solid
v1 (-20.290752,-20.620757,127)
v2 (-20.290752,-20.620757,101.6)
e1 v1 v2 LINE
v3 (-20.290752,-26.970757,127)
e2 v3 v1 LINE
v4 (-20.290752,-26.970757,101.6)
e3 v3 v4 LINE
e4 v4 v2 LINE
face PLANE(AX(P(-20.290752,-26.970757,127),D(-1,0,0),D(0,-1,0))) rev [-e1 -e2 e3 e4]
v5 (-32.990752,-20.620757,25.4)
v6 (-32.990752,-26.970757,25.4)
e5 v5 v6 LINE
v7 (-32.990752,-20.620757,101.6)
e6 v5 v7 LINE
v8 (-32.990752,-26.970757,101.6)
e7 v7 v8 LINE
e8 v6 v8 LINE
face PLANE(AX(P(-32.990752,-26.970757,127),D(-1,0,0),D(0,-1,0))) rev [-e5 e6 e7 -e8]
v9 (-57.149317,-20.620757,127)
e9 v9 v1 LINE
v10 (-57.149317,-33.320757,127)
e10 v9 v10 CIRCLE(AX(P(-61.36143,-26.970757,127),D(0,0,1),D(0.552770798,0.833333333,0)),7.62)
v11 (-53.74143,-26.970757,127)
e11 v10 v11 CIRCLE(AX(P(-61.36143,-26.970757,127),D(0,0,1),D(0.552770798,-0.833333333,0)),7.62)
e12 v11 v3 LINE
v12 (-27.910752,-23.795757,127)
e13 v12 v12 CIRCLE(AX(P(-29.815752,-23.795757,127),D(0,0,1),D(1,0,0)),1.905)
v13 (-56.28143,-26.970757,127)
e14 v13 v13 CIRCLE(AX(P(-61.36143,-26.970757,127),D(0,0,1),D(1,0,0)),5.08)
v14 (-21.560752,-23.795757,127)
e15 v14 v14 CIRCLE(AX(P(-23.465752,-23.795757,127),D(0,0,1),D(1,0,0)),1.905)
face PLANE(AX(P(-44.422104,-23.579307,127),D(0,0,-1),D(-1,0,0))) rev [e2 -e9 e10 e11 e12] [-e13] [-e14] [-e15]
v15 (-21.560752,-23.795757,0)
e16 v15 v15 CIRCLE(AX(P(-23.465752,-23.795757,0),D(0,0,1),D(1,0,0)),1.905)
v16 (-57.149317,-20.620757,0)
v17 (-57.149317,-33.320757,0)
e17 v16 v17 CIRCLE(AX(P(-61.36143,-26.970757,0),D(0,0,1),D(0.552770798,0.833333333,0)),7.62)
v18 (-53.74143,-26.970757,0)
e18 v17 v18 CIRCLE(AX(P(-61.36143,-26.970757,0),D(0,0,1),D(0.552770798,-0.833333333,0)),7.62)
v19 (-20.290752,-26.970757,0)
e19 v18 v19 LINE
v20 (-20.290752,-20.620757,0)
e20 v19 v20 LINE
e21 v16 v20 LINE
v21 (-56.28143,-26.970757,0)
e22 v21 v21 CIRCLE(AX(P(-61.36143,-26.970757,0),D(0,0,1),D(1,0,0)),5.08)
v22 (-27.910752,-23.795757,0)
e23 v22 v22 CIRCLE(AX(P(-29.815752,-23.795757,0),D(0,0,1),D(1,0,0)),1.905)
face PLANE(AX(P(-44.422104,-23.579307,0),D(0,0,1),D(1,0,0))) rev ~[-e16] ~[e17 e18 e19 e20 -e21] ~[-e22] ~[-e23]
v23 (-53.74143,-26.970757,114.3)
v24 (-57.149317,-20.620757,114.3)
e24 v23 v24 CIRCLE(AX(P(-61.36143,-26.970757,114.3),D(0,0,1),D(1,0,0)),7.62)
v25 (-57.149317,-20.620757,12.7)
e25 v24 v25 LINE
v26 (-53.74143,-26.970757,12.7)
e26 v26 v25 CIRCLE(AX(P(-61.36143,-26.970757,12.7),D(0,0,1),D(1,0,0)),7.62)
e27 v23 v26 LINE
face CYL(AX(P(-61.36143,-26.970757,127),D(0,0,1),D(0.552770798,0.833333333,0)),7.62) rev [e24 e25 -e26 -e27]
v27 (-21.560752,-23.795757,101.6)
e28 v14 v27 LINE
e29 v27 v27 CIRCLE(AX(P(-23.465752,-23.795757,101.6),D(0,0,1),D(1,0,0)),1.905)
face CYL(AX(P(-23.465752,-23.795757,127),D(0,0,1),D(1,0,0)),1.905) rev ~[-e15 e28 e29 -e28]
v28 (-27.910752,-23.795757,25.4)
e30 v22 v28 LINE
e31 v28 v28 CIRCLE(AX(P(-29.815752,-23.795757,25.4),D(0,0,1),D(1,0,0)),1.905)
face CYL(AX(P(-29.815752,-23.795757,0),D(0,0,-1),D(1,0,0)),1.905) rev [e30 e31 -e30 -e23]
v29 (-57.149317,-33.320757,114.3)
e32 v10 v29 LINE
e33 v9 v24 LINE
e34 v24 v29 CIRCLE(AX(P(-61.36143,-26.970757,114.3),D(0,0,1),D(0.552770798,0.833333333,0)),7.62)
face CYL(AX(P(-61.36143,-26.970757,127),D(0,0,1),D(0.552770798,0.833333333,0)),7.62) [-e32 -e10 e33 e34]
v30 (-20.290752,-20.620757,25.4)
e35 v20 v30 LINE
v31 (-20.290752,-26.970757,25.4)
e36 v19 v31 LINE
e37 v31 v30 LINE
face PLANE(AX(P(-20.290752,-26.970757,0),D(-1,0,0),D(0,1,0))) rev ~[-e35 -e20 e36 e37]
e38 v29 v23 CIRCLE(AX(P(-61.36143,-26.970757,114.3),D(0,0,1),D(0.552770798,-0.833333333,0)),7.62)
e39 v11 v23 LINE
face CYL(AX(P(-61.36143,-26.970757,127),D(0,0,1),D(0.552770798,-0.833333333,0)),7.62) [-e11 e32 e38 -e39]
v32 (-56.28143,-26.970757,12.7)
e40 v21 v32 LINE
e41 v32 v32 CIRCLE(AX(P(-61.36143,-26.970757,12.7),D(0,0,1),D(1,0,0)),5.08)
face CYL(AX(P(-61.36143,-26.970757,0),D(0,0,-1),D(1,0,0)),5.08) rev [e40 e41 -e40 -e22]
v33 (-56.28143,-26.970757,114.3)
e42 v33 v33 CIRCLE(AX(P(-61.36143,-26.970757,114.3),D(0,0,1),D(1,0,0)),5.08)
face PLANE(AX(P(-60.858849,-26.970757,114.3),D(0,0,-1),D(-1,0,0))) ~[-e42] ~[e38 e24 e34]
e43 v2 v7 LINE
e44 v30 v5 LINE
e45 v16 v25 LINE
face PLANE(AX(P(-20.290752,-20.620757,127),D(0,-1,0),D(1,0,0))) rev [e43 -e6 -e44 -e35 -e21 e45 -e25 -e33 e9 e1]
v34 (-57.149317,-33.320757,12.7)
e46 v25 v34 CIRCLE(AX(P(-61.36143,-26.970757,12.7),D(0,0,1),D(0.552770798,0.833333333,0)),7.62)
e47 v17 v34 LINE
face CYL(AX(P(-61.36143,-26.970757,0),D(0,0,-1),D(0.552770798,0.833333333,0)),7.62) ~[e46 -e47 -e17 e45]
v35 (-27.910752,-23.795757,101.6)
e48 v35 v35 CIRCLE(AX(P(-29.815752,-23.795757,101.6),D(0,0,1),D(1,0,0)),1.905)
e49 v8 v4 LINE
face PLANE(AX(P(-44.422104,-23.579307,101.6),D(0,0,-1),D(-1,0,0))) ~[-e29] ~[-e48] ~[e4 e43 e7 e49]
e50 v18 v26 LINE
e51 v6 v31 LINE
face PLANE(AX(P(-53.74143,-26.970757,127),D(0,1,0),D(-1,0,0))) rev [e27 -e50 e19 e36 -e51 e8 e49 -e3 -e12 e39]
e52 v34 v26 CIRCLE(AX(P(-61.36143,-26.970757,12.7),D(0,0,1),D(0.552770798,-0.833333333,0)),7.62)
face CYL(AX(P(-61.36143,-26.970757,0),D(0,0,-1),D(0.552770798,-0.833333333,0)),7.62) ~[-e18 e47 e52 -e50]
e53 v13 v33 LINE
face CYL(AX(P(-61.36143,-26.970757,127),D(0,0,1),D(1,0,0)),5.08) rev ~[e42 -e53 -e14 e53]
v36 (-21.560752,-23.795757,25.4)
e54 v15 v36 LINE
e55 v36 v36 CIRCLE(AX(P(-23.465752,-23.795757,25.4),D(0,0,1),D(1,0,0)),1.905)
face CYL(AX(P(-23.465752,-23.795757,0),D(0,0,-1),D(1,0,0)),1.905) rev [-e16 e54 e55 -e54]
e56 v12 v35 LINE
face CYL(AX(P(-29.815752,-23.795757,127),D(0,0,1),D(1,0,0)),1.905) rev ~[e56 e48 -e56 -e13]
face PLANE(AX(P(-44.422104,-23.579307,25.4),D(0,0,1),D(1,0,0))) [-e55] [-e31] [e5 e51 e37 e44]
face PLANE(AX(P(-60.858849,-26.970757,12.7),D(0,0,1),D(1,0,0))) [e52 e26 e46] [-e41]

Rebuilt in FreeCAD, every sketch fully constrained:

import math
import FreeCAD as App
import Part
import Sketcher
Q = App.Units.Quantity

doc = App.newDocument("Part")
body = doc.addObject("PartDesign::Body", "Body")

# Sketch on XY plane
sketch1 = body.newObject("Sketcher::SketchObject", "Sketch")
sketch1.AttachmentSupport = (doc.getObject("XY_Plane"), [""])
sketch1.MapMode = "FlatFace"
sketch1.addGeometry([
    Part.ArcOfCircle(Part.Circle(App.Vector(-61, -27, 0), App.Vector(0, 0, 1), 8), math.radians(56), math.radians(304)),
    Part.ArcOfCircle(Part.Circle(App.Vector(-61, -27, 0), App.Vector(0, 0, 1), 8), math.radians(-56), math.radians(0)),
    Part.ArcOfCircle(Part.Circle(App.Vector(-61, -27, 0), App.Vector(0, 0, 1), 8), math.radians(0), math.radians(56)),
    Part.Circle(App.Vector(-61, -27, 0), App.Vector(0, 0, 1), 5),
], False)
sketch1.addConstraint([
    Sketcher.Constraint("Tangent", 0, 2, 1, 1),
    Sketcher.Constraint("Tangent", 1, 2, 2, 1),
    Sketcher.Constraint("Tangent", 2, 2, 0, 1),
    Sketcher.Constraint("Coincident", 3, 3, 0, 3),
    Sketcher.Constraint("Horizontal", 3, 3, 1, 2),
    Sketcher.Constraint("Vertical", 0, 2, 2, 2),
    Sketcher.Constraint("Diameter", 3, Q("0.4 in")),
    Sketcher.Constraint("Radius", 0, Q("0.3 in")),
    Sketcher.Constraint("DistanceY", 0, 2, 2, 3, Q("0.25 in")),
    Sketcher.Constraint("DistanceX", 0, 3, -1, 1, Q("61.36143 mm")),
    Sketcher.Constraint("DistanceY", 0, 3, -1, 1, Q("26.970757 mm")),
])
pad1 = body.newObject("PartDesign::Pad", "Pad")
pad1.Profile = sketch1
pad1.Length = Q("0.5 in")

# Sketch on XY plane
sketch2 = body.newObject("Sketcher::SketchObject", "Sketch001")
sketch2.AttachmentSupport = (doc.getObject("XY_Plane"), [""])
sketch2.MapMode = "FlatFace"
sketch2.addGeometry([
    Part.LineSegment(App.Vector(-53.7, -27, 0), App.Vector(-20.3, -27, 0)),  # 0
    Part.LineSegment(App.Vector(-20.3, -27, 0), App.Vector(-20.3, -20.6, 0)),  # 1
    Part.LineSegment(App.Vector(-20.3, -20.6, 0), App.Vector(-57.1, -20.6, 0)),  # 2
    Part.ArcOfCircle(Part.Circle(App.Vector(-61.4, -27, 0), App.Vector(0, 0, 1), 7.6), math.radians(0), math.radians(56)),  # 3
    Part.Circle(App.Vector(-29.8, -23.8, 0), App.Vector(0, 0, 1), 1.9),  # 4
    Part.Circle(App.Vector(-23.5, -23.8, 0), App.Vector(0, 0, 1), 1.9),  # 5
], False)
sketch2.addConstraint([
    Sketcher.Constraint("Coincident", 0, 2, 1, 1),
    Sketcher.Constraint("Coincident", 1, 2, 2, 1),
    Sketcher.Constraint("Coincident", 2, 2, 3, 2),
    Sketcher.Constraint("Coincident", 3, 1, 0, 1),
    Sketcher.Constraint("Horizontal", 0),
    Sketcher.Constraint("Vertical", 1),
    Sketcher.Constraint("Horizontal", 2),
    Sketcher.Constraint("Equal", 4, 5),
    Sketcher.Constraint("Horizontal", 4, 3, 5, 3),
    Sketcher.Constraint("Horizontal", 3, 3, 0, 2),
    Sketcher.Constraint("Radius", 3, Q("0.3 in")),
    Sketcher.Constraint("Diameter", 4, Q("0.15 in")),
    Sketcher.Constraint("DistanceY", 1, 1, 1, 2, Q("0.25 in")),
    Sketcher.Constraint("DistanceX", 4, 3, 5, 3, Q("0.25 in")),
    Sketcher.Constraint("DistanceY", 3, 3, 4, 3, Q("0.125 in")),
    Sketcher.Constraint("DistanceX", 5, 3, 0, 2, Q("0.125 in")),
    Sketcher.Constraint("DistanceX", 0, 1, 0, 2, Q("33.450679 mm")),
    Sketcher.Constraint("DistanceX", 3, 3, -1, 1, Q("61.36143 mm")),
    Sketcher.Constraint("DistanceY", 3, 3, -1, 1, Q("26.970757 mm")),
])
pad2 = body.newObject("PartDesign::Pad", "Pad001")
pad2.Profile = sketch2
pad2.Length = Q("1 in")

# Sketch on XY plane
sketch3 = body.newObject("Sketcher::SketchObject", "Sketch002")
sketch3.AttachmentSupport = (doc.getObject("XY_Plane"), [""])
sketch3.MapMode = "FlatFace"
sketch3.addGeometry([
    Part.LineSegment(App.Vector(-54, -27, 0), App.Vector(-33, -27, 0)),
    Part.LineSegment(App.Vector(-33, -27, 0), App.Vector(-33, -21, 0)),
    Part.LineSegment(App.Vector(-33, -21, 0), App.Vector(-57, -21, 0)),
    Part.ArcOfCircle(Part.Circle(App.Vector(-61, -27, 0), App.Vector(0, 0, 1), 8), math.radians(0), math.radians(56)),
], False)
sketch3.addConstraint([
    Sketcher.Constraint("Coincident", 0, 2, 1, 1),
    Sketcher.Constraint("Coincident", 1, 2, 2, 1),
    Sketcher.Constraint("Coincident", 2, 2, 3, 2),
    Sketcher.Constraint("Coincident", 3, 1, 0, 1),
    Sketcher.Constraint("Horizontal", 0),
    Sketcher.Constraint("Vertical", 1),
    Sketcher.Constraint("Horizontal", 2),
    Sketcher.Constraint("Horizontal", 3, 3, 0, 2),
    Sketcher.Constraint("Radius", 3, Q("0.3 in")),
    Sketcher.Constraint("DistanceY", 1, 1, 1, 2, Q("0.25 in")),
    Sketcher.Constraint("DistanceX", 0, 1, 0, 2, Q("20.750679 mm")),
    Sketcher.Constraint("DistanceX", 3, 3, -1, 1, Q("61.36143 mm")),
    Sketcher.Constraint("DistanceY", 3, 3, -1, 1, Q("26.970757 mm")),
])
pad3 = body.newObject("PartDesign::Pad", "Pad002")
pad3.Profile = sketch3
pad3.Length = Q("2.5 in")
body2 = doc.addObject("PartDesign::Body", "Body001")
doc.recompute()

body2.BaseFeature = body
doc.recompute()

mirroring = doc.addObject("Part::Mirroring", "Mirroring")
mirroring.Source = body
mirroring.Base = App.Vector(-43.892507, -23.718378, 63.5)
mirroring.Normal = App.Vector(0, 0, 1)
body3 = doc.addObject("PartDesign::Body", "Body002")
body3.BaseFeature = mirroring
boolean = body2.newObject("PartDesign::Boolean", "Boolean")
boolean.Type = "Fuse"
boolean.addObjects([body3])
doc.recompute()
mirroring.Visibility = False

doc.recompute()
